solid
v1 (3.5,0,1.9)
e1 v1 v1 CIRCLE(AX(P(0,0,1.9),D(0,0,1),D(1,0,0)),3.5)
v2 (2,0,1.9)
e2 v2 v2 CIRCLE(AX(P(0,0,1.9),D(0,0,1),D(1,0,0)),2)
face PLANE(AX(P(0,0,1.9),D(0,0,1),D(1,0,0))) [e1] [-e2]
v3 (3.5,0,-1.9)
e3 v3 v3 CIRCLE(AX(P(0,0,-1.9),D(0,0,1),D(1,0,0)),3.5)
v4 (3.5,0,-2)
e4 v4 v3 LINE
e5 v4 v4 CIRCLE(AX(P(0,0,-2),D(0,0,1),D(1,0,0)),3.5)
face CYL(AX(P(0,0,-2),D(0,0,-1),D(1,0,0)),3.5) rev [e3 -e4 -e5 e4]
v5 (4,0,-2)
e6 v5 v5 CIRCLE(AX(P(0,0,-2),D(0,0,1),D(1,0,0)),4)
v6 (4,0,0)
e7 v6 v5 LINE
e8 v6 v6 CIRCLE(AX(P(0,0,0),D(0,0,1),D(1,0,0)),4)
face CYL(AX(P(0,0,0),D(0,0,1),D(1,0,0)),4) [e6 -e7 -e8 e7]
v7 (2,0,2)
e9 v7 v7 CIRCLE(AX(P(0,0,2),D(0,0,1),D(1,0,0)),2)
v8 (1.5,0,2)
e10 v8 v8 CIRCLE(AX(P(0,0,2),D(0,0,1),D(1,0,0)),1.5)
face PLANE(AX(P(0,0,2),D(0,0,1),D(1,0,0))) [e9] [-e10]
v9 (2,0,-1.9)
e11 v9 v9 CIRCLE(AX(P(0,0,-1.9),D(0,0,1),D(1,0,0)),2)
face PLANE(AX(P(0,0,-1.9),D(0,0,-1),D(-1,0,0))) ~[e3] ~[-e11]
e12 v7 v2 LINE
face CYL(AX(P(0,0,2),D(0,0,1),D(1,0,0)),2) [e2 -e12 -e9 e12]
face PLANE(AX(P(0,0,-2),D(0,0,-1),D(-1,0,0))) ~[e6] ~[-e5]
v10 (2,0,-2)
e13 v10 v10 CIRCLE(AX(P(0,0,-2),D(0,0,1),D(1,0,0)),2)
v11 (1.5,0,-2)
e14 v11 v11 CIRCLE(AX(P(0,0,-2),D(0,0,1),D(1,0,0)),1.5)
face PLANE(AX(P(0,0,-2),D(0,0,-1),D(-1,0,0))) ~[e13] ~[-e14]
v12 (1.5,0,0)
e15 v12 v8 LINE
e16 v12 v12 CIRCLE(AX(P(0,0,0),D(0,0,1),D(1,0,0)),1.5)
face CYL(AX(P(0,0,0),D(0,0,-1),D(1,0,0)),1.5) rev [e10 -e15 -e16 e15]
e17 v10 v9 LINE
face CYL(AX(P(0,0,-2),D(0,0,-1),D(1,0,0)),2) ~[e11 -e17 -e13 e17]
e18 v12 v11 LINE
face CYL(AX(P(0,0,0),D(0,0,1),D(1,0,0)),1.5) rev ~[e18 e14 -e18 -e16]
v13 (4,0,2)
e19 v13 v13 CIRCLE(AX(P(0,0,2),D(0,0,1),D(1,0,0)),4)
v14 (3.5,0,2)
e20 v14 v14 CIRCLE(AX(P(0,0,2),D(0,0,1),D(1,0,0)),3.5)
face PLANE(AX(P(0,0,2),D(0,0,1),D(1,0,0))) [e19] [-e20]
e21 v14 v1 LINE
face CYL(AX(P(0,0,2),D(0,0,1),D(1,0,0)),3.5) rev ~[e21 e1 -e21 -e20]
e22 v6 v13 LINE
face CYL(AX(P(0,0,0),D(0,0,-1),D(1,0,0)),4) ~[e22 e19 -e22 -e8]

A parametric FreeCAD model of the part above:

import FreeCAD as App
import Part
import Sketcher
from FreeCAD import Vector
Q = App.Units.Quantity

doc = App.newDocument("Part")
body = doc.addObject("PartDesign::Body", "Body")

sketch1 = doc.addObject("Sketcher::SketchObject", "Sketch")
body.addObject(sketch1)
sketch1.AttachmentSupport = (doc.XY_Plane, [""])
sketch1.MapMode = "FlatFace"
sketch1.addGeometry([
    Part.Circle(Vector(0, 0, 0), Vector(0, 0, 1), 4),
    Part.Circle(Vector(0, 0, 0), Vector(0, 0, 1), 1.5),
], False)
sketch1.addConstraint([
    Sketcher.Constraint("Coincident", 0, 3, -1, 1),
    Sketcher.Constraint("Coincident", 1, 3, -1, 1),
    Sketcher.Constraint("Diameter", 0, Q("8 mm")),
    Sketcher.Constraint("Diameter", 1, Q("3 mm")),
])
pad1 = doc.addObject("PartDesign::Pad", "Pad")
body.addObject(pad1)
pad1.Profile = sketch1
pad1.Length = 2

sketch2 = doc.addObject("Sketcher::SketchObject", "Sketch001")
body.addObject(sketch2)
sketch2.AttachmentSupport = (doc.XY_Plane, [""])
sketch2.MapMode = "FlatFace"
sketch2.AttachmentOffset = App.Placement(Vector(0, 0, 2), App.Rotation())
sketch2.addGeometry([
    Part.Circle(Vector(0, 0, 0), Vector(0, 0, 1), 3.5),
    Part.Circle(Vector(0, 0, 0), Vector(0, 0, 1), 2),
], False)
sketch2.addConstraint([
    Sketcher.Constraint("Coincident", 0, 3, -1, 1),
    Sketcher.Constraint("Coincident", 1, 3, -1, 1),
    Sketcher.Constraint("Diameter", 1, Q("4 mm")),
    Sketcher.Constraint("Diameter", 0, Q("7 mm")),
])
pocket1 = doc.addObject("PartDesign::Pocket", "Pocket")
body.addObject(pocket1)
pocket1.Profile = sketch2
pocket1.Length = 0.1
doc.recompute()

mirrored = doc.addObject("PartDesign::Mirrored", "Mirrored")
body.addObject(mirrored)
mirrored.Originals = [pad1, pocket1]
mirrored.MirrorPlane = (doc.XY_Plane, [""])
body.Tip = mirrored

doc.recompute()
